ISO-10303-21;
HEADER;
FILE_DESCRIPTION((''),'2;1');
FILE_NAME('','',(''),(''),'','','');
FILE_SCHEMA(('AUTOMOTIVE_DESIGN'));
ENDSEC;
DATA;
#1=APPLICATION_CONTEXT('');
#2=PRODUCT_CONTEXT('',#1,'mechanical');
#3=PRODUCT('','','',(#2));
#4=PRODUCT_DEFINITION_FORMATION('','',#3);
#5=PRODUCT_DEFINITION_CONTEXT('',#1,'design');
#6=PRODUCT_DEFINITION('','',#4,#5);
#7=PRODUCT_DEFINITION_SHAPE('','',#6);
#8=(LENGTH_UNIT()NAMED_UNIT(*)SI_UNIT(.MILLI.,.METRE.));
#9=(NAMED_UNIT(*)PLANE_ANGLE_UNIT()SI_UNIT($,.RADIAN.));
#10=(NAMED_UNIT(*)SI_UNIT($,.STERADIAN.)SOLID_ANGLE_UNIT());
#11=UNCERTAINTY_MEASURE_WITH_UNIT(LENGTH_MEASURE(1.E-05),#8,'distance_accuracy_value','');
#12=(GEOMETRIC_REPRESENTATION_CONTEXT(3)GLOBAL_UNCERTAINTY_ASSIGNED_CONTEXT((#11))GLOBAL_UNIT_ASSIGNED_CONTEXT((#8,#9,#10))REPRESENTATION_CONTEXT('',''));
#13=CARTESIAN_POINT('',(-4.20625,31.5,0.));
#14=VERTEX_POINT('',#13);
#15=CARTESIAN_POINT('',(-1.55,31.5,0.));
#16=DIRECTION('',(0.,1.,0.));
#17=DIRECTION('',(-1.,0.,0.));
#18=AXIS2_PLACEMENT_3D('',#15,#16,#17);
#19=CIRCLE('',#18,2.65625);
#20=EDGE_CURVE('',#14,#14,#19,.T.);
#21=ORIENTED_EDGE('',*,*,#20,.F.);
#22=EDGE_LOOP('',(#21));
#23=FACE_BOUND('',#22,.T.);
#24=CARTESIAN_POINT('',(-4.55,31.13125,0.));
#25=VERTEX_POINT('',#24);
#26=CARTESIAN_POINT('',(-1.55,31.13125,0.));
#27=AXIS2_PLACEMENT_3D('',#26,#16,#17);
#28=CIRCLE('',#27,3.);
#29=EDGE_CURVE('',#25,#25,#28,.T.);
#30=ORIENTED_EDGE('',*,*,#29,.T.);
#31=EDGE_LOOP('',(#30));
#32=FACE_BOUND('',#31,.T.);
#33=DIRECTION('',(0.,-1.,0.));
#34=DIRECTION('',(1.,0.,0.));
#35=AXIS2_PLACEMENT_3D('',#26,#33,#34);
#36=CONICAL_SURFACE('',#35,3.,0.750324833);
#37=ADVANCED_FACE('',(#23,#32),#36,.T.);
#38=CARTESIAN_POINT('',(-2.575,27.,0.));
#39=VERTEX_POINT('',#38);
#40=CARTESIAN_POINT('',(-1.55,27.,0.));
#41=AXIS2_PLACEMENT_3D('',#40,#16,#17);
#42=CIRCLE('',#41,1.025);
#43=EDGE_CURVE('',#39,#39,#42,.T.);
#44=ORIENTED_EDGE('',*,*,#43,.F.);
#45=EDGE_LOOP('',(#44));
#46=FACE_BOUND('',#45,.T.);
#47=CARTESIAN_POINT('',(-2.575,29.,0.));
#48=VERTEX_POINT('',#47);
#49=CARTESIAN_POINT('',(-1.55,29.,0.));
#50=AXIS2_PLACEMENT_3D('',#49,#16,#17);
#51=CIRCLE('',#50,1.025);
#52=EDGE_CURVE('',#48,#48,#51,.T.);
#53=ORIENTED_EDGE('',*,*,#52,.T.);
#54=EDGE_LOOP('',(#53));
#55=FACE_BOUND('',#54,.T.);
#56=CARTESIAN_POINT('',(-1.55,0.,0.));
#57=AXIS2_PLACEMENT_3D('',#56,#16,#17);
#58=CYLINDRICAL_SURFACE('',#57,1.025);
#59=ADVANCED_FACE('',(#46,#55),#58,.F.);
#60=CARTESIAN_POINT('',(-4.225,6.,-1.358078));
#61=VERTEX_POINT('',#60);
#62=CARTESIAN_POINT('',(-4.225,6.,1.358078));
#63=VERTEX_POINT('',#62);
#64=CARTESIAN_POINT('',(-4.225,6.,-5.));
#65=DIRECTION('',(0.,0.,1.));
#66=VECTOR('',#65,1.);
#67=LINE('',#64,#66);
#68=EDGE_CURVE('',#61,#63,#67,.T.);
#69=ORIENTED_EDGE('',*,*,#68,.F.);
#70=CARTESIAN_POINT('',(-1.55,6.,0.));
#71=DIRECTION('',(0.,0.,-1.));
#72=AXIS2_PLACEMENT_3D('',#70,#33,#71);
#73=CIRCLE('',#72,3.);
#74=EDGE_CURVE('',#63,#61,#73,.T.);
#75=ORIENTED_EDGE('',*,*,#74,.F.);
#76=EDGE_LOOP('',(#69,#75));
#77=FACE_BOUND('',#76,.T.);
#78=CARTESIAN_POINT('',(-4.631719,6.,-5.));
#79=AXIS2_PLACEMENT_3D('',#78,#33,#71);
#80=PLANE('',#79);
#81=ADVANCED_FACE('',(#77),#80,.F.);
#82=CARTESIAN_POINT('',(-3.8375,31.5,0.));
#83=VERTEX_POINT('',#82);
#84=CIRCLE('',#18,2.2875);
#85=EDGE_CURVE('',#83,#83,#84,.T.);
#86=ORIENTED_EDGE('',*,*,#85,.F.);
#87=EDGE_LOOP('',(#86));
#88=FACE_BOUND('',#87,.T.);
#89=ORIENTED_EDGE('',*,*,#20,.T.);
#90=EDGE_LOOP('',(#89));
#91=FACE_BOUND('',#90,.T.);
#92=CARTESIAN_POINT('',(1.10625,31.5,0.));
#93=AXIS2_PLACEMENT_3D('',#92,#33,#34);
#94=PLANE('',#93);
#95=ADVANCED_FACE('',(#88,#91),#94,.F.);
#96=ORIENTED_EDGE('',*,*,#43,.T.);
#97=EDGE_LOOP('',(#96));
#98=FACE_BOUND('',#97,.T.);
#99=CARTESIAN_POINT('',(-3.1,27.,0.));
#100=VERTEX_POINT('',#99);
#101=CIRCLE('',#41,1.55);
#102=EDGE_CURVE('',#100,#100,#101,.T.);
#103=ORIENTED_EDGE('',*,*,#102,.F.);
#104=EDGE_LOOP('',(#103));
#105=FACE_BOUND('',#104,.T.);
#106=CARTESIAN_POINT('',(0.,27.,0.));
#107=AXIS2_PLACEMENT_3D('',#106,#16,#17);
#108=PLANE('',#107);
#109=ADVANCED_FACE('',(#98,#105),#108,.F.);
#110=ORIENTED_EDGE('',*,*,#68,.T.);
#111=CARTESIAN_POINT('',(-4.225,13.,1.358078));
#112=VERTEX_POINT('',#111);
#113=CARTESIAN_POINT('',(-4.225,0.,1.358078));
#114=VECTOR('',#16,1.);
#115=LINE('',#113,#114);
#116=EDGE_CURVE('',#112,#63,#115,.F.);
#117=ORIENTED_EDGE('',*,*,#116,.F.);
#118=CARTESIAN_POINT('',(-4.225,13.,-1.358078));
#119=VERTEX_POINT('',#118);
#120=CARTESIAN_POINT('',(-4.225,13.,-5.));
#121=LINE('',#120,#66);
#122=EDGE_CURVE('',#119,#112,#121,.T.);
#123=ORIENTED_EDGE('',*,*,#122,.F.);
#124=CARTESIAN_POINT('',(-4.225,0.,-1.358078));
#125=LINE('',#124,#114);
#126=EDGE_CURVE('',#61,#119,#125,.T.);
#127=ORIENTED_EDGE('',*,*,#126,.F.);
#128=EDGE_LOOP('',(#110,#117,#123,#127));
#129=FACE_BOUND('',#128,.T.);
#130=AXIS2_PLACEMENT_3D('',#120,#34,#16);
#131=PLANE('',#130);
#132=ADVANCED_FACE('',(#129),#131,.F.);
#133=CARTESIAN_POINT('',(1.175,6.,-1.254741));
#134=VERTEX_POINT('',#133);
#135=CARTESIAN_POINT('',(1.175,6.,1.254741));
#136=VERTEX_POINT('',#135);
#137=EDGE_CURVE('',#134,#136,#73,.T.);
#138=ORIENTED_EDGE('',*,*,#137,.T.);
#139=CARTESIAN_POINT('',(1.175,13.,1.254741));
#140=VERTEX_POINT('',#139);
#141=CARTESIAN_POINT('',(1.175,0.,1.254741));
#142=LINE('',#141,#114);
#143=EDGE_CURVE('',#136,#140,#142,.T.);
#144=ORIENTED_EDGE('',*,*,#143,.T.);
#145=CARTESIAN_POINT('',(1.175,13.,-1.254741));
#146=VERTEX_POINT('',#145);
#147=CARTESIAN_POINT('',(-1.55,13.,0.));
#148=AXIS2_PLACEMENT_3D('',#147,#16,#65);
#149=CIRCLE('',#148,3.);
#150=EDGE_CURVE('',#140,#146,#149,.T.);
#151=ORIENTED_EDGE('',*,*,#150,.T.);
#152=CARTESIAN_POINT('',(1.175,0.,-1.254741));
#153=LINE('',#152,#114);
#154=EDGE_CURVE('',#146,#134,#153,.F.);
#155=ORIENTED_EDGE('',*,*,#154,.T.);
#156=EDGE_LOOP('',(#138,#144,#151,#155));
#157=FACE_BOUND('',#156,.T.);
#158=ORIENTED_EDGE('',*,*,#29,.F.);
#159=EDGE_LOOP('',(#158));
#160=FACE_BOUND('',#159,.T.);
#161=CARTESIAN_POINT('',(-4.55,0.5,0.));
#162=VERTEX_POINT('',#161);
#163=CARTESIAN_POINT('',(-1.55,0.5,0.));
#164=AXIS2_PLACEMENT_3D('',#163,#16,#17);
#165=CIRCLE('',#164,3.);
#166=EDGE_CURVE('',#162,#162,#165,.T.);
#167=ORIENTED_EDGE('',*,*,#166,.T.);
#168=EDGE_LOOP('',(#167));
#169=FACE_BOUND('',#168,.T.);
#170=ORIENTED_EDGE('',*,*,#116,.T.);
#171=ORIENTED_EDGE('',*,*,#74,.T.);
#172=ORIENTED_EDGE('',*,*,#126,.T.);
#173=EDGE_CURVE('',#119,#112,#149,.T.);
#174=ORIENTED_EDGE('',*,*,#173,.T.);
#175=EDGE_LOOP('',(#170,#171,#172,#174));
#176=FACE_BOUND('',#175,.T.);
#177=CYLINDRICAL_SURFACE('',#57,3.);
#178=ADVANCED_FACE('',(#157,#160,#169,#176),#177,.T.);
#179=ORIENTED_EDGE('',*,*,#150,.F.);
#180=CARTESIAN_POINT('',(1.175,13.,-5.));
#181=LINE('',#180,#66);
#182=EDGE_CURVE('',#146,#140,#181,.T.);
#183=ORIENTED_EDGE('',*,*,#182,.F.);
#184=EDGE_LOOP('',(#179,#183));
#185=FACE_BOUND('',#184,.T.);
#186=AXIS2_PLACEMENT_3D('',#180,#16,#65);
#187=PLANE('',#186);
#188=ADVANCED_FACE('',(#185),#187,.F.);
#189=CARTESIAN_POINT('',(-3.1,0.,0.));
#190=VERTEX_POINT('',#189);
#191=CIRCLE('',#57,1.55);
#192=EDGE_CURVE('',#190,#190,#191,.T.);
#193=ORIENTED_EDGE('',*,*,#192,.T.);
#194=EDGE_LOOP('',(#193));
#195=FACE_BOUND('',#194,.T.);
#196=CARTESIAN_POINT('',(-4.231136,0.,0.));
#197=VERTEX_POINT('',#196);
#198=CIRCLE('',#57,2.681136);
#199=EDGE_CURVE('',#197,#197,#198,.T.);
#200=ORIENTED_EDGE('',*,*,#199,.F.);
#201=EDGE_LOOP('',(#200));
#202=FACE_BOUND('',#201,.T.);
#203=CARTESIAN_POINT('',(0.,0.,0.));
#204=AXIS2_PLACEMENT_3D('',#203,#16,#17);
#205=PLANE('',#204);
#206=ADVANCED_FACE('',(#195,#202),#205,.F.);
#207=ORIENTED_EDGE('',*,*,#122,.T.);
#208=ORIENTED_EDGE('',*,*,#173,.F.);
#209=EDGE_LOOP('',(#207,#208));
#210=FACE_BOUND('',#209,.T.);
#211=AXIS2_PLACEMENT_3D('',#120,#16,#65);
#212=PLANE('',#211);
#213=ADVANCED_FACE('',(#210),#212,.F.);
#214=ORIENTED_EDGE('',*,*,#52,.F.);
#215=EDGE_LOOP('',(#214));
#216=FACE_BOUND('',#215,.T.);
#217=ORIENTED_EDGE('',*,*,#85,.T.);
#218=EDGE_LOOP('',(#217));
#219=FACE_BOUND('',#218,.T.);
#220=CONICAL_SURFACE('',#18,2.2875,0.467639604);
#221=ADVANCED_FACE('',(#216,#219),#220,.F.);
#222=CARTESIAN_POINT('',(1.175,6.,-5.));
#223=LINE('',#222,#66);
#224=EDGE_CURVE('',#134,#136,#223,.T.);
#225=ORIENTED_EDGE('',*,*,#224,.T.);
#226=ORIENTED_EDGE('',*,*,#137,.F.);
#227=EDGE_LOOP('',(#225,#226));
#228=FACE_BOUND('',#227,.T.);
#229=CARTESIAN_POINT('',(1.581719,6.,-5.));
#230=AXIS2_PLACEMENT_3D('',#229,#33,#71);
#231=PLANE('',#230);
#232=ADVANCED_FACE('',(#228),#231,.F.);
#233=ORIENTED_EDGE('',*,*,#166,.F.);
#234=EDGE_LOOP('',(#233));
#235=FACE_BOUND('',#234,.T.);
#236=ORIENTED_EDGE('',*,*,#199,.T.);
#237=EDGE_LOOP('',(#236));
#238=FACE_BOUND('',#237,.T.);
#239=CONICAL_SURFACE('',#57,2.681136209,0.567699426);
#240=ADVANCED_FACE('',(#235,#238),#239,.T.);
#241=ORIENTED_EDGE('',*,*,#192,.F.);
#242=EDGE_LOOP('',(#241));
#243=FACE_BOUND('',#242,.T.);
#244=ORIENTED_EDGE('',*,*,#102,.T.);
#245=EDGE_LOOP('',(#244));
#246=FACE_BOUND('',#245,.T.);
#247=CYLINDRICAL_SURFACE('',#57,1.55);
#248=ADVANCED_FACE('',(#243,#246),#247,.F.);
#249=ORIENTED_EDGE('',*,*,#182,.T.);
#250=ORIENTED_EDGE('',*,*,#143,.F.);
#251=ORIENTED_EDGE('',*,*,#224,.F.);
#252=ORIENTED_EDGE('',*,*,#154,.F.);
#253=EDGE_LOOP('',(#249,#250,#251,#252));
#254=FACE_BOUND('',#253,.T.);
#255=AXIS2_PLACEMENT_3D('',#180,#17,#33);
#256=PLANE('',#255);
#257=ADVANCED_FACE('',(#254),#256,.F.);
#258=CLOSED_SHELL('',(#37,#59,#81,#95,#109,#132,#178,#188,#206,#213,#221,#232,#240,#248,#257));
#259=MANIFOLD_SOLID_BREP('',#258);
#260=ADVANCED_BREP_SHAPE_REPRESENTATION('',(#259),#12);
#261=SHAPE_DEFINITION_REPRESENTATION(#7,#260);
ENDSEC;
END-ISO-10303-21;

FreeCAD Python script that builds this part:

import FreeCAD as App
import Part
import Sketcher

V = App.Vector
Q = App.Units.Quantity

doc = App.newDocument("Part")
body = doc.addObject("PartDesign::Body", "Body")

# Sketch on XY plane
sketch1 = body.newObject("Sketcher::SketchObject", "Sketch")
sketch1.AttachmentSupport = (doc.getObject("XY_Plane"), [""])
sketch1.MapMode = "FlatFace"
sketch1.addGeometry(Part.LineSegment(V(0, 0, 0), V(1.131136, 0, 0)), False)
sketch1.addGeometry(Part.LineSegment(V(1.131136, 0, 0), V(1.45, 0.5, 0)), False)
sketch1.addGeometry(Part.LineSegment(V(1.45, 0.5, 0), V(1.45, 31.13125, 0)), False)
sketch1.addGeometry(Part.LineSegment(V(1.45, 31.13125, 0), V(1.10625, 31.5, 0)), False)
sketch1.addGeometry(Part.LineSegment(V(1.10625, 31.5, 0), V(0.7375, 31.5, 0)), False)
sketch1.addGeometry(Part.LineSegment(V(0.7375, 31.5, 0), V(-0.525, 29, 0)), False)
sketch1.addGeometry(Part.LineSegment(V(-0.525, 29, 0), V(-0.525, 27, 0)), False)
sketch1.addGeometry(Part.LineSegment(V(-0.525, 27, 0), V(0, 27, 0)), False)
sketch1.addGeometry(Part.LineSegment(V(0, 27, 0), V(0, 0, 0)), False)
sketch1.addGeometry(Part.LineSegment(V(-1.55, 31.5, 0), V(-1.55, 0, 0)), True)  # axis
sketch1.addConstraint(Sketcher.Constraint("Coincident", 0, 2, 1, 1))
sketch1.addConstraint(Sketcher.Constraint("Coincident", 1, 2, 2, 1))
sketch1.addConstraint(Sketcher.Constraint("Coincident", 2, 2, 3, 1))
sketch1.addConstraint(Sketcher.Constraint("Coincident", 3, 2, 4, 1))
sketch1.addConstraint(Sketcher.Constraint("Coincident", 4, 2, 5, 1))
sketch1.addConstraint(Sketcher.Constraint("Coincident", 5, 2, 6, 1))
sketch1.addConstraint(Sketcher.Constraint("Coincident", 6, 2, 7, 1))
sketch1.addConstraint(Sketcher.Constraint("Coincident", 7, 2, 8, 1))
sketch1.addConstraint(Sketcher.Constraint("Coincident", 8, 2, 0, 1))
sketch1.addConstraint(Sketcher.Constraint("Horizontal", 0))
sketch1.addConstraint(Sketcher.Constraint("Vertical", 2))
sketch1.addConstraint(Sketcher.Constraint("Horizontal", 4))
sketch1.addConstraint(Sketcher.Constraint("Vertical", 6))
sketch1.addConstraint(Sketcher.Constraint("Horizontal", 7))
sketch1.addConstraint(Sketcher.Constraint("Vertical", 8))
sketch1.addConstraint(Sketcher.Constraint("Vertical", 9))
sketch1.addConstraint(Sketcher.Constraint("Coincident", 8, 2, -1, 1))
sketch1.addConstraint(Sketcher.Constraint("PointOnObject", 9, 2, -1))
sketch1.addConstraint(Sketcher.Constraint("Horizontal", 4, 2, 9, 1))
sketch1.addConstraint(Sketcher.Constraint("DistanceY", 6, 2, 6, 1, Q("2 mm")))
sketch1.addConstraint(Sketcher.Constraint("DistanceY", 8, 2, 8, 1, Q("27 mm")))
sketch1.addConstraint(Sketcher.Constraint("DistanceY", 9, 2, 9, 1, Q("31.5 mm")))
sketch1.addConstraint(Sketcher.Constraint("DistanceY", 1, 2, 3, 2, Q("31 mm")))
sketch1.addConstraint(Sketcher.Constraint("DistanceX", 9, 1, 2, 2, Q("3 mm")))
sketch1.addConstraint(Sketcher.Constraint("DistanceX", 7, 1, 7, 2, Q("0.525 mm")))
sketch1.addConstraint(Sketcher.Constraint("DistanceX", -1, 1, 1, 2, Q("1.45 mm")))
sketch1.addConstraint(Sketcher.Constraint("DistanceX", 4, 2, 4, 1, Q("0.36875 mm")))
sketch1.addConstraint(Sketcher.Constraint("DistanceY", 2, 1, 2, 2, Q("30.63125 mm")))
sketch1.addConstraint(Sketcher.Constraint("DistanceX", -1, 1, 4, 2, Q("0.7375 mm")))
sketch1.addConstraint(Sketcher.Constraint("Distance", 1, Q("0.593021 mm")))
revolution = body.newObject("PartDesign::Revolution", "Revolution")
revolution.Profile = sketch1
revolution.ReferenceAxis = (sketch1, ["Axis0"])
revolution.Angle = 360

# Sketch on XY plane
sketch2 = body.newObject("Sketcher::SketchObject", "Sketch001")
sketch2.AttachmentSupport = (doc.getObject("XY_Plane"), [""])
sketch2.MapMode = "FlatFace"
sketch2.addGeometry(Part.LineSegment(V(-4.631719, 13, 0), V(-4.631719, 6, 0)), False)
sketch2.addGeometry(Part.LineSegment(V(-4.631719, 6, 0), V(-4.225, 6, 0)), False)
sketch2.addGeometry(Part.LineSegment(V(-4.225, 6, 0), V(-4.225, 13, 0)), False)
sketch2.addGeometry(Part.LineSegment(V(-4.225, 13, 0), V(-4.631719, 13, 0)), False)
sketch2.addGeometry(Part.LineSegment(V(1.175, 13, 0), V(1.175, 6, 0)), False)
sketch2.addGeometry(Part.LineSegment(V(1.175, 6, 0), V(1.581719, 6, 0)), False)
sketch2.addGeometry(Part.LineSegment(V(1.581719, 6, 0), V(1.581719, 13, 0)), False)
sketch2.addGeometry(Part.LineSegment(V(1.581719, 13, 0), V(1.175, 13, 0)), False)
sketch2.addConstraint(Sketcher.Constraint("Coincident", 0, 2, 1, 1))
sketch2.addConstraint(Sketcher.Constraint("Coincident", 1, 2, 2, 1))
sketch2.addConstraint(Sketcher.Constraint("Coincident", 2, 2, 3, 1))
sketch2.addConstraint(Sketcher.Constraint("Coincident", 3, 2, 0, 1))
sketch2.addConstraint(Sketcher.Constraint("Coincident", 4, 2, 5, 1))
sketch2.addConstraint(Sketcher.Constraint("Coincident", 5, 2, 6, 1))
sketch2.addConstraint(Sketcher.Constraint("Coincident", 6, 2, 7, 1))
sketch2.addConstraint(Sketcher.Constraint("Coincident", 7, 2, 4, 1))
sketch2.addConstraint(Sketcher.Constraint("Vertical", 0))
sketch2.addConstraint(Sketcher.Constraint("Horizontal", 1))
sketch2.addConstraint(Sketcher.Constraint("Vertical", 2))
sketch2.addConstraint(Sketcher.Constraint("Horizontal", 3))
sketch2.addConstraint(Sketcher.Constraint("Vertical", 4))
sketch2.addConstraint(Sketcher.Constraint("Horizontal", 5))
sketch2.addConstraint(Sketcher.Constraint("Vertical", 6))
sketch2.addConstraint(Sketcher.Constraint("Horizontal", 7))
sketch2.addConstraint(Sketcher.Constraint("Horizontal", 1, 2, 4, 2))
sketch2.addConstraint(Sketcher.Constraint("Horizontal", 3, 2, 6, 2))
sketch2.addConstraint(Sketcher.Constraint("Equal", 3, 5))
sketch2.addConstraint(Sketcher.Constraint("DistanceY", 0, 2, 0, 1, Q("7 mm")))
sketch2.addConstraint(Sketcher.Constraint("DistanceY", -1, 1, 0, 2, Q("6 mm")))
sketch2.addConstraint(Sketcher.Constraint("DistanceX", 1, 2, 4, 2, Q("5.4 mm")))
sketch2.addConstraint(Sketcher.Constraint("DistanceX", 1, 2, -1, 1, Q("4.225 mm")))
sketch2.addConstraint(Sketcher.Constraint("DistanceX", 1, 1, 1, 2, Q("0.406719 mm")))
pocket1 = body.newObject("PartDesign::Pocket", "Pocket")
pocket1.Profile = sketch2
pocket1.Length = 10
pocket1.Midplane = True

doc.recompute()
